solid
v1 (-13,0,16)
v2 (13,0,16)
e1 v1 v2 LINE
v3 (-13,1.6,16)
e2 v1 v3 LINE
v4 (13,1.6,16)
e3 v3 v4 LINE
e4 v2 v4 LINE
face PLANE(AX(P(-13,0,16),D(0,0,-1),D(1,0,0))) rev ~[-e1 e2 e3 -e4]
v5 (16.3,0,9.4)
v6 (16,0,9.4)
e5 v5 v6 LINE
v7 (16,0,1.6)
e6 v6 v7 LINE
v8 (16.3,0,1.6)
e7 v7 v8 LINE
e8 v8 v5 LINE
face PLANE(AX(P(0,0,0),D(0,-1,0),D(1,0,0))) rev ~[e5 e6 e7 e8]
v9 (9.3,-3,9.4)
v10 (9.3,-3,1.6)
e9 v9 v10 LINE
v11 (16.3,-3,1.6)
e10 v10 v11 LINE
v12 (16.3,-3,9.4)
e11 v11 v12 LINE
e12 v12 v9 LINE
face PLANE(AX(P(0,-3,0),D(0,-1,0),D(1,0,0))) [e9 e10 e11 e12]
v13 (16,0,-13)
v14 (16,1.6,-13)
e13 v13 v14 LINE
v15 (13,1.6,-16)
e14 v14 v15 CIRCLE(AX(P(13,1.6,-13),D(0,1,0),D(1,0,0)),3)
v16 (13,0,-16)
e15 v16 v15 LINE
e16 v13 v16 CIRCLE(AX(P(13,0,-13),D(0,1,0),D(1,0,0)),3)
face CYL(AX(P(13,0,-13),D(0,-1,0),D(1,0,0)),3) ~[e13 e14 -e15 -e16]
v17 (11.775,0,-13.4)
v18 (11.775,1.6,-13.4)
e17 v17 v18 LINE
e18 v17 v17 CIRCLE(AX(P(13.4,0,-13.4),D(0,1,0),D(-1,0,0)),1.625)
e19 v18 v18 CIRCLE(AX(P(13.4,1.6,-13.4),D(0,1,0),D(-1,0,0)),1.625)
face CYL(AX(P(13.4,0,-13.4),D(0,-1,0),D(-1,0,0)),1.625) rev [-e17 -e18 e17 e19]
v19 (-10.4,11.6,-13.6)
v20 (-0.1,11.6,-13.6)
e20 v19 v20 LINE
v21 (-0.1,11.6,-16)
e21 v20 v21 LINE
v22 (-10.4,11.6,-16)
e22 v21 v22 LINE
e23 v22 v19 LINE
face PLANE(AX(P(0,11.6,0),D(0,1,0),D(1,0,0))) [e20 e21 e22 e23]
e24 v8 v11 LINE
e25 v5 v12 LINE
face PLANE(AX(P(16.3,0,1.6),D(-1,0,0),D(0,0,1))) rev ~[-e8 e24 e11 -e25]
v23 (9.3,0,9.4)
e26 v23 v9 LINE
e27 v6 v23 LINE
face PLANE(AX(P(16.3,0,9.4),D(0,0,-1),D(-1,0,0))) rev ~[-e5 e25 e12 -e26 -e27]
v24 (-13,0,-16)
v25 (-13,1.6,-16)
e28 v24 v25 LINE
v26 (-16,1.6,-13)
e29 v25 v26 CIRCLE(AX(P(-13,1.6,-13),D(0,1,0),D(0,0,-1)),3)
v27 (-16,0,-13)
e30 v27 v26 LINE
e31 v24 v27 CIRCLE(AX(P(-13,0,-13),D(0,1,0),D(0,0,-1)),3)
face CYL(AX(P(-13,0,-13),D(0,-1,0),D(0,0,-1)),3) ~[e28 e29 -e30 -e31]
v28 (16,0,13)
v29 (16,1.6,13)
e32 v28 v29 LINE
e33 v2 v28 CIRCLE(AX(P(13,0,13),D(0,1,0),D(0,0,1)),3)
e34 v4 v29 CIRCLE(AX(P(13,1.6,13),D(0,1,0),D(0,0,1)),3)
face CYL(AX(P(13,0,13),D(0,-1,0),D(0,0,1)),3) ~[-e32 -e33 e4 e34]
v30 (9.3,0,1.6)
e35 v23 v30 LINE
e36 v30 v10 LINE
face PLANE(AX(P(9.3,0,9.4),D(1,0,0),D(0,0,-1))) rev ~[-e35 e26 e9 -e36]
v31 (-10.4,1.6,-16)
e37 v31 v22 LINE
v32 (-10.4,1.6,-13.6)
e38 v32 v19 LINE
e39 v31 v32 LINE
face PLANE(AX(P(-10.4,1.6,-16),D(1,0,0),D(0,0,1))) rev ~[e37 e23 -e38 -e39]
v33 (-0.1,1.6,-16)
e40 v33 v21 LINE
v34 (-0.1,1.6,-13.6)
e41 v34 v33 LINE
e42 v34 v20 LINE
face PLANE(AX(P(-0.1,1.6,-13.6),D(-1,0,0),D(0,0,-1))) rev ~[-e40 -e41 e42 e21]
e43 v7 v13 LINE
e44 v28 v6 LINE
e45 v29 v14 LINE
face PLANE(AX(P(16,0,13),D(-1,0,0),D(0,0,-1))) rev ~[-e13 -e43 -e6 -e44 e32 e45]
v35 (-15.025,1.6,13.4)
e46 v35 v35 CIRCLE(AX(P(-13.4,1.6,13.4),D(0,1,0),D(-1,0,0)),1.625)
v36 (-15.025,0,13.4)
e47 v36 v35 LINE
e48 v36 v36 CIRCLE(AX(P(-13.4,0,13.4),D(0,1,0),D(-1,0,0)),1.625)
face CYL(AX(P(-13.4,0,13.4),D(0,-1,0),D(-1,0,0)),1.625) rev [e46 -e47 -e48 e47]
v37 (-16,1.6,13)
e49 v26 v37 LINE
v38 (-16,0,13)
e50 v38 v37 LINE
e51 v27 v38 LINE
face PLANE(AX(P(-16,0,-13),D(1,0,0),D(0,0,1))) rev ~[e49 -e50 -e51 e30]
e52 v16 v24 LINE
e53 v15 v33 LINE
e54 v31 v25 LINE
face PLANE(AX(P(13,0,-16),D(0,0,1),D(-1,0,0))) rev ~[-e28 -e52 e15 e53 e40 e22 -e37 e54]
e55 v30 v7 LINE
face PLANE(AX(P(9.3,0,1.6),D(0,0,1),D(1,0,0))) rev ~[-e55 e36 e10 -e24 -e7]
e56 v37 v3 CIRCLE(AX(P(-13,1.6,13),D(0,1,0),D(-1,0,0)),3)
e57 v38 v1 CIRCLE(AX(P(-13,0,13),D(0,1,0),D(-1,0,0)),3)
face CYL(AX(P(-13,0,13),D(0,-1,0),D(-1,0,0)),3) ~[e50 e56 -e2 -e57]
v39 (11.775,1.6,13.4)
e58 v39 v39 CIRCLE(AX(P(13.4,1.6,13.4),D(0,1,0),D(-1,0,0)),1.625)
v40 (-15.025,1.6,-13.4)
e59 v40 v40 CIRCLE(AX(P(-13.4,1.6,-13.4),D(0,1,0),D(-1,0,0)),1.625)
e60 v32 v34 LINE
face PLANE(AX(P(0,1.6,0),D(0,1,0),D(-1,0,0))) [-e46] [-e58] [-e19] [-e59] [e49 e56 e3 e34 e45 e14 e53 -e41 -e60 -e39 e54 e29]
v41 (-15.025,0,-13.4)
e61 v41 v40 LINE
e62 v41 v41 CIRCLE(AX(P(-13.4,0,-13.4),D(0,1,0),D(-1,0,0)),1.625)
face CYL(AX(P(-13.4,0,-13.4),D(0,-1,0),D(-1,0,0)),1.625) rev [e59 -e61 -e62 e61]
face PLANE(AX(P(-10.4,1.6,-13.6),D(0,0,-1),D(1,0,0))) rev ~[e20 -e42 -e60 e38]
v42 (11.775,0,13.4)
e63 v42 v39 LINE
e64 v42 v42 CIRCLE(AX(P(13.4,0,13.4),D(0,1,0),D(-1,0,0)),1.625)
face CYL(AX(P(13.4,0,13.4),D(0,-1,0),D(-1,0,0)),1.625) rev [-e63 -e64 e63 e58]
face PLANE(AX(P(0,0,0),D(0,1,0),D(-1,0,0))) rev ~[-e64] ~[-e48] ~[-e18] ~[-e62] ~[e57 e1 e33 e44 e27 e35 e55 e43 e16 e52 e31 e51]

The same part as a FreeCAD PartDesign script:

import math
import FreeCAD as App
import Part
import Sketcher

V = App.Vector
Q = App.Units.Quantity


def add_polygon(sketch, points):
    """Adds a closed chain of lines whose ends are joined by coincident constraints."""
    first, n = sketch.GeometryCount, len(points)
    for a, b in zip(points, points[1:] + points[:1]):
        sketch.addGeometry(Part.LineSegment(App.Vector(*a, 0), App.Vector(*b, 0)), False)
    for i in range(n):
        sketch.addConstraint(Sketcher.Constraint("Coincident", first + i, 2, first + (i + 1) % n, 1))

doc = App.newDocument("Part")
params = doc.addObject("Spreadsheet::Sheet", "Params")
for row, (alias, value) in enumerate([
    ("sketch1_radius", "3 mm"),
    ("sketch1_diameter", "3.25 mm"),
    ("sketch1_width", "26 mm"),
    ("pad1_length", "1.6 mm"),
    ("sketch2_width", "10.3 mm"),
    ("sketch2_height", "2.4 mm"),
    ("pad2_length", "10 mm"),
    ("sketch3_width", "7 mm"),
    ("sketch3_height", "7.8 mm"),
    ("pad3_length", "3 mm"),
], start=1):
    params.set(f"A{row}", alias)
    params.set(f"B{row}", "=" + value)
    params.setAlias(f"B{row}", alias)

body = doc.addObject("PartDesign::Body", "Body")

# Sketch on XZ plane
sketch1 = doc.addObject("Sketcher::SketchObject", "Sketch")
body.addObject(sketch1)
sketch1.AttachmentSupport = (doc.XZ_Plane, [""])
sketch1.MapMode = "FlatFace"
sketch1.addGeometry(Part.ArcOfCircle(Part.Circle(V(-13, 13, 0), V(0, 0, 1), 3), math.radians(90), math.radians(180)), False)
sketch1.addGeometry(Part.LineSegment(V(-13, 16, 0), V(13, 16, 0)), False)
sketch1.addGeometry(Part.ArcOfCircle(Part.Circle(V(13, 13, 0), V(0, 0, 1), 3), math.radians(0), math.radians(90)), False)
sketch1.addGeometry(Part.LineSegment(V(16, 13, 0), V(16, -13, 0)), False)
sketch1.addGeometry(Part.ArcOfCircle(Part.Circle(V(13, -13, 0), V(0, 0, 1), 3), math.radians(-90), math.radians(0)), False)
sketch1.addGeometry(Part.LineSegment(V(13, -16, 0), V(-13, -16, 0)), False)
sketch1.addGeometry(Part.ArcOfCircle(Part.Circle(V(-13, -13, 0), V(0, 0, 1), 3), math.radians(180), math.radians(270)), False)
sketch1.addGeometry(Part.LineSegment(V(-16, -13, 0), V(-16, 13, 0)), False)
sketch1.addGeometry(Part.Circle(V(13.4, -13.4, 0), V(0, 0, 1), 1.625), False)
sketch1.addGeometry(Part.Circle(V(-13.4, -13.4, 0), V(0, 0, 1), 1.625), False)
sketch1.addGeometry(Part.Circle(V(13.4, 13.4, 0), V(0, 0, 1), 1.625), False)
sketch1.addGeometry(Part.Circle(V(-13.4, 13.4, 0), V(0, 0, 1), 1.625), False)
sketch1.addConstraint(Sketcher.Constraint("Tangent", 0, 1, 1, 1))
sketch1.addConstraint(Sketcher.Constraint("Tangent", 1, 2, 2, 2))
sketch1.addConstraint(Sketcher.Constraint("Tangent", 2, 1, 3, 1))
sketch1.addConstraint(Sketcher.Constraint("Tangent", 3, 2, 4, 2))
sketch1.addConstraint(Sketcher.Constraint("Tangent", 4, 1, 5, 1))
sketch1.addConstraint(Sketcher.Constraint("Tangent", 5, 2, 6, 2))
sketch1.addConstraint(Sketcher.Constraint("Tangent", 6, 1, 7, 1))
sketch1.addConstraint(Sketcher.Constraint("Tangent", 7, 2, 0, 2))
sketch1.addConstraint(Sketcher.Constraint("Horizontal", 1))
sketch1.addConstraint(Sketcher.Constraint("Vertical", 3))
sketch1.addConstraint(Sketcher.Constraint("Horizontal", 5))
sketch1.addConstraint(Sketcher.Constraint("Vertical", 7))
sketch1.addConstraint(Sketcher.Constraint("Equal", 0, 2))
sketch1.addConstraint(Sketcher.Constraint("Equal", 2, 4))
sketch1.addConstraint(Sketcher.Constraint("Equal", 4, 6))
sketch1.addConstraint(Sketcher.Constraint("Equal", 8, 9))
sketch1.addConstraint(Sketcher.Constraint("Equal", 9, 10))
sketch1.addConstraint(Sketcher.Constraint("Equal", 10, 11))
sketch1.addConstraint(Sketcher.Constraint("Symmetric", 0, 3, 4, 3, -1, 1))
sketch1.addConstraint(Sketcher.Constraint("Symmetric", 9, 3, 10, 3, -1, 1))
sketch1.addConstraint(Sketcher.Constraint("Symmetric", 8, 3, 11, 3, -1, 1))
sketch1.addConstraint(Sketcher.Constraint("Symmetric", 8, 3, 9, 3, -2))
sketch1.addConstraint(Sketcher.Constraint("Equal", 5, 3))
sketch1.addConstraint(Sketcher.Constraint("Radius", 0, Q("3 mm")))
sketch1.addConstraint(Sketcher.Constraint("Diameter", 8, Q("3.25 mm")))
sketch1.addConstraint(Sketcher.Constraint("DistanceX", 9, 3, 8, 3, Q("26.8 mm")))
sketch1.addConstraint(Sketcher.Constraint("DistanceY", 8, 3, 10, 3, Q("26.8 mm")))
sketch1.addConstraint(Sketcher.Constraint("DistanceX", 1, 1, 1, 2, Q("26 mm")))
sketch1.setExpression("Constraints[23]", "Params.sketch1_radius")
sketch1.setExpression("Constraints[24]", "Params.sketch1_diameter")
sketch1.setExpression("Constraints[27]", "Params.sketch1_width")
pad1 = doc.addObject("PartDesign::Pad", "Pad")
body.addObject(pad1)
pad1.Profile = sketch1
pad1.setExpression("Length", "Params.pad1_length")
pad1.Reversed = True

# Sketch on XZ plane
sketch2 = doc.addObject("Sketcher::SketchObject", "Sketch001")
body.addObject(sketch2)
sketch2.AttachmentSupport = (doc.XZ_Plane, [""])
sketch2.MapMode = "FlatFace"
sketch2.AttachmentOffset = App.Placement(V(0, 0, -1.6), App.Rotation())
add_polygon(sketch2, [(-10.4, -16), (-10.4, -13.6), (-0.1, -13.6), (-0.1, -16)])  # lines 0-3
sketch2.addConstraint(Sketcher.Constraint("Vertical", 0))
sketch2.addConstraint(Sketcher.Constraint("Horizontal", 1))
sketch2.addConstraint(Sketcher.Constraint("Vertical", 2))
sketch2.addConstraint(Sketcher.Constraint("Horizontal", 3))
sketch2.addConstraint(Sketcher.Constraint("DistanceX", 1, 1, 1, 2, Q("10.3 mm")))
sketch2.addConstraint(Sketcher.Constraint("DistanceY", 0, 1, 0, 2, Q("2.4 mm")))
sketch2.addConstraint(Sketcher.Constraint("DistanceY", 2, 2, -1, 1, Q("16 mm")))
sketch2.addConstraint(Sketcher.Constraint("DistanceX", 0, 2, -1, 1, Q("10.4 mm")))
sketch2.setExpression("Constraints[8]", "Params.sketch2_width")
sketch2.setExpression("Constraints[9]", "Params.sketch2_height")
pad2 = doc.addObject("PartDesign::Pad", "Pad001")
body.addObject(pad2)
pad2.Profile = sketch2
pad2.setExpression("Length", "Params.pad2_length")
pad2.Reversed = True

# Sketch on XZ plane
sketch3 = doc.addObject("Sketcher::SketchObject", "Sketch002")
body.addObject(sketch3)
sketch3.AttachmentSupport = (doc.XZ_Plane, [""])
sketch3.MapMode = "FlatFace"
add_polygon(sketch3, [(16.3, 1.6), (16.3, 9.4), (9.3, 9.4), (9.3, 1.6)])  # lines 0-3
sketch3.addConstraint(Sketcher.Constraint("Vertical", 0))
sketch3.addConstraint(Sketcher.Constraint("Horizontal", 1))
sketch3.addConstraint(Sketcher.Constraint("Vertical", 2))
sketch3.addConstraint(Sketcher.Constraint("Horizontal", 3))
sketch3.addConstraint(Sketcher.Constraint("DistanceX", 1, 2, 1, 1, Q("7 mm")))
sketch3.addConstraint(Sketcher.Constraint("DistanceY", 0, 1, 0, 2, Q("7.8 mm")))
sketch3.addConstraint(Sketcher.Constraint("DistanceX", -1, 1, 0, 2, Q("16.3 mm")))
sketch3.addConstraint(Sketcher.Constraint("DistanceY", -1, 1, 0, 2, Q("9.4 mm")))
sketch3.setExpression("Constraints[8]", "Params.sketch3_width")
sketch3.setExpression("Constraints[9]", "Params.sketch3_height")
pad3 = doc.addObject("PartDesign::Pad", "Pad002")
body.addObject(pad3)
pad3.Profile = sketch3
pad3.setExpression("Length", "Params.pad3_length")

doc.recompute()
